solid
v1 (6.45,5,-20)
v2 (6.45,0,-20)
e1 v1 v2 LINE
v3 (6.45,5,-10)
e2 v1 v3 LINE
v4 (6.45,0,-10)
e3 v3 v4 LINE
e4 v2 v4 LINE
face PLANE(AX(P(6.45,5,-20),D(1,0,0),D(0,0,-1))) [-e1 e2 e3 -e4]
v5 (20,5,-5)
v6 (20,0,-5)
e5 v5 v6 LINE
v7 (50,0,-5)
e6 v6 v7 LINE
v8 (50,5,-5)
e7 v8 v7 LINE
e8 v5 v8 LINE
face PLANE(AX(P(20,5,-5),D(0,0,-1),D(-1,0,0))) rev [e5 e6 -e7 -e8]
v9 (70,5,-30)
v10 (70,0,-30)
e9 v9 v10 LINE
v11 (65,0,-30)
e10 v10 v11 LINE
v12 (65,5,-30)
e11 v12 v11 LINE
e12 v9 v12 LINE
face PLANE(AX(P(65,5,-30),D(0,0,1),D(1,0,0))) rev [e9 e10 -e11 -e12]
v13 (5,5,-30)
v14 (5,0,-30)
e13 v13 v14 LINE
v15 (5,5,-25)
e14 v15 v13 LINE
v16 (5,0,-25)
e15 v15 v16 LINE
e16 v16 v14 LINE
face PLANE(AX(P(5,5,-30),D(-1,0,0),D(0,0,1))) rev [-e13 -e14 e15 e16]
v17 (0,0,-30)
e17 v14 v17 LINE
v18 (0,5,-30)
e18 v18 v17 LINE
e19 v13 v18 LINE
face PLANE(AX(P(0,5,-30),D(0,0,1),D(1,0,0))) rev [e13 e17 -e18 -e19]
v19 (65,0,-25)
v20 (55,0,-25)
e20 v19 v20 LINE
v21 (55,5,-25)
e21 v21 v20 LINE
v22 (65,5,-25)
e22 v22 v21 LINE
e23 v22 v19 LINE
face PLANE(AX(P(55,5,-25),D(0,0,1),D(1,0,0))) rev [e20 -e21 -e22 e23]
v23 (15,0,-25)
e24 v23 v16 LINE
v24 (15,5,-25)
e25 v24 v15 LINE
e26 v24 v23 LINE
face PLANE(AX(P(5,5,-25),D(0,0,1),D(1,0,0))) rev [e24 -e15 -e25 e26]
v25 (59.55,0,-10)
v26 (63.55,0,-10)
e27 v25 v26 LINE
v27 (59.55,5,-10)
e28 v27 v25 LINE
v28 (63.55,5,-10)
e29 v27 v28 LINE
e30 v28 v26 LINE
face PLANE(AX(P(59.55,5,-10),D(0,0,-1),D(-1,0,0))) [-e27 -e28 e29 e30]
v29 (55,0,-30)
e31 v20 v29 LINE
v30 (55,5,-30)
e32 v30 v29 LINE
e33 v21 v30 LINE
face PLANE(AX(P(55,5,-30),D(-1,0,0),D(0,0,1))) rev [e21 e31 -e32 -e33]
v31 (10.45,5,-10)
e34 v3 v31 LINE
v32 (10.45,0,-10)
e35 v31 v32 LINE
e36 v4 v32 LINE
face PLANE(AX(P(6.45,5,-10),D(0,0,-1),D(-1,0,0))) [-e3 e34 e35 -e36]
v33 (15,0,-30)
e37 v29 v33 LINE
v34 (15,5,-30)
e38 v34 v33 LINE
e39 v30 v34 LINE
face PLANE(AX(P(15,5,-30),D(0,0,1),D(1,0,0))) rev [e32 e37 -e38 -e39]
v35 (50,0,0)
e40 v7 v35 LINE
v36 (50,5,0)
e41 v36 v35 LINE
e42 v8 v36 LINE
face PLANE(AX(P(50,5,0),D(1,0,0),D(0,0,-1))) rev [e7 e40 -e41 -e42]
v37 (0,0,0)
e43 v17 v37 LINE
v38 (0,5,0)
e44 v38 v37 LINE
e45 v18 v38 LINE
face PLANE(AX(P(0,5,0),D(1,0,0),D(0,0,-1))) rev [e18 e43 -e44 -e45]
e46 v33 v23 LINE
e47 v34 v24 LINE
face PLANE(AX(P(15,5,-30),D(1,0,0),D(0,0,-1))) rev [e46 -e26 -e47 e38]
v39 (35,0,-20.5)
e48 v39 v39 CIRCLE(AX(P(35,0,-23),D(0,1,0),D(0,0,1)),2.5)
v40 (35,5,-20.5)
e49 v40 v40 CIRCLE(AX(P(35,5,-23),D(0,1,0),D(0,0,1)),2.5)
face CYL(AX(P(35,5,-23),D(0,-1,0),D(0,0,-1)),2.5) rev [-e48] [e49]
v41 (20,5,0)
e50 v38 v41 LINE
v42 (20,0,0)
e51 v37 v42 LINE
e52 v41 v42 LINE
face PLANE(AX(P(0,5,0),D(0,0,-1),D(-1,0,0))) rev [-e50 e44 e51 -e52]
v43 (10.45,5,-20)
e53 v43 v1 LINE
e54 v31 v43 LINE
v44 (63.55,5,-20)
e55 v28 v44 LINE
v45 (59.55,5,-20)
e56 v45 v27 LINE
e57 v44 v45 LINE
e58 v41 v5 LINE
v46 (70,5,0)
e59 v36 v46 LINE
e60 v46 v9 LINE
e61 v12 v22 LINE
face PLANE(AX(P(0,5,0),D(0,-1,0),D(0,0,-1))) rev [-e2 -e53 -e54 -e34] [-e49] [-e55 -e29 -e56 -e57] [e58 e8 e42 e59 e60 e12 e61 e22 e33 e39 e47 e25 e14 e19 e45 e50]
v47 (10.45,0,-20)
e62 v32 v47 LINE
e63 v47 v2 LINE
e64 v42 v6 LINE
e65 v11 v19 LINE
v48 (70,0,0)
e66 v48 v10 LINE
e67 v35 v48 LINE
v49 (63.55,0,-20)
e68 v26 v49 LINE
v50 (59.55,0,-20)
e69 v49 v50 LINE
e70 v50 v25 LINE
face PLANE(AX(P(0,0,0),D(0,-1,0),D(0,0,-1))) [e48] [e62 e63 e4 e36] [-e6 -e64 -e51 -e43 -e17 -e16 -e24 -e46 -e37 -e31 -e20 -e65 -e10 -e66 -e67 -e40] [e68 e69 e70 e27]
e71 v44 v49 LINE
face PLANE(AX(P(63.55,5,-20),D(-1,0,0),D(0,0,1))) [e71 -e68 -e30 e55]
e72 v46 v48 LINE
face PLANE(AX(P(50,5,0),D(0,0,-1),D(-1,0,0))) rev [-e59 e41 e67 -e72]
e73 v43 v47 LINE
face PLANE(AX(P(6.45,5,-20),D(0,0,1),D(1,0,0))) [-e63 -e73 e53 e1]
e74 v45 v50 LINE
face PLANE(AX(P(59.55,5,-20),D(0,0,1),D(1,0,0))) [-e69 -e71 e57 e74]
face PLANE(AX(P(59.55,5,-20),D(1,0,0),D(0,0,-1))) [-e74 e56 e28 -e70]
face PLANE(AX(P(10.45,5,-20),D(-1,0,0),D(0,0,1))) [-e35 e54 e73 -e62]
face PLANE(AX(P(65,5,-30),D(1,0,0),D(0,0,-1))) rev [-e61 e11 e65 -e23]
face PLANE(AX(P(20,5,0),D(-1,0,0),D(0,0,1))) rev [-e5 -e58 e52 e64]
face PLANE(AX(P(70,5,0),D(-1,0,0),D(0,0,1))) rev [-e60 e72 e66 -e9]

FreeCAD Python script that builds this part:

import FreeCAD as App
import Part
import Sketcher
from FreeCAD import Vector


def add_polygon(sketch, points):
    """Adds a closed chain of lines whose ends are joined by coincident constraints."""
    first, n = sketch.GeometryCount, len(points)
    for a, b in zip(points, points[1:] + points[:1]):
        sketch.addGeometry(Part.LineSegment(App.Vector(*a, 0), App.Vector(*b, 0)), False)
    for i in range(n):
        sketch.addConstraint(Sketcher.Constraint("Coincident", first + i, 2, first + (i + 1) % n, 1))

doc = App.newDocument("Part")
body = doc.addObject("PartDesign::Body", "Body")

sketch1 = body.newObject("Sketcher::SketchObject", "Sketch")
sketch1.AttachmentSupport = (doc.getObject("XZ_Plane"), [""])
sketch1.MapMode = "FlatFace"
add_polygon(sketch1, [(0, 0), (20, 0), (20, -5), (50, -5), (50, 0), (70, 0), (70, -30), (65, -30), (65, -25), (55, -25), (55, -30), (15, -30), (15, -25), (5, -25), (5, -30), (0, -30)])
add_polygon(sketch1, [(10.45, -10), (6.45, -10), (6.45, -20), (10.45, -20)])
add_polygon(sketch1, [(63.55, -10), (59.55, -10), (59.55, -20), (63.55, -20)])
sketch1.addGeometry(Part.Circle(Vector(35, -23, 0), Vector(0, 0, 1), 2.5), False)
sketch1.addConstraint(Sketcher.Constraint("Horizontal", 0))
sketch1.addConstraint(Sketcher.Constraint("Vertical", 1))
sketch1.addConstraint(Sketcher.Constraint("Horizontal", 2))
sketch1.addConstraint(Sketcher.Constraint("Vertical", 3))
sketch1.addConstraint(Sketcher.Constraint("Horizontal", 4))
sketch1.addConstraint(Sketcher.Constraint("Vertical", 5))
sketch1.addConstraint(Sketcher.Constraint("Horizontal", 6))
sketch1.addConstraint(Sketcher.Constraint("Vertical", 7))
sketch1.addConstraint(Sketcher.Constraint("Horizontal", 8))
sketch1.addConstraint(Sketcher.Constraint("Vertical", 9))
sketch1.addConstraint(Sketcher.Constraint("Horizontal", 10))
sketch1.addConstraint(Sketcher.Constraint("Vertical", 11))
sketch1.addConstraint(Sketcher.Constraint("Horizontal", 12))
sketch1.addConstraint(Sketcher.Constraint("Vertical", 13))
sketch1.addConstraint(Sketcher.Constraint("Horizontal", 14))
sketch1.addConstraint(Sketcher.Constraint("Vertical", 15))
sketch1.addConstraint(Sketcher.Constraint("Horizontal", 16))
sketch1.addConstraint(Sketcher.Constraint("Vertical", 17))
sketch1.addConstraint(Sketcher.Constraint("Horizontal", 18))
sketch1.addConstraint(Sketcher.Constraint("Vertical", 19))
sketch1.addConstraint(Sketcher.Constraint("Horizontal", 20))
sketch1.addConstraint(Sketcher.Constraint("Vertical", 21))
sketch1.addConstraint(Sketcher.Constraint("Horizontal", 22))
sketch1.addConstraint(Sketcher.Constraint("Vertical", 23))
sketch1.addConstraint(Sketcher.Constraint("Coincident", 15, 2, -1, 1))
sketch1.addConstraint(Sketcher.Constraint("PointOnObject", 3, 2, -1))
sketch1.addConstraint(Sketcher.Constraint("Horizontal", 6, 2, 9, 2))
sketch1.addConstraint(Sketcher.Constraint("Horizontal", 8, 2, 11, 2))
sketch1.addConstraint(Sketcher.Constraint("Horizontal", 10, 2, 13, 2))
sketch1.addConstraint(Sketcher.Constraint("Horizontal", 19, 2, 20, 2))
sketch1.addConstraint(Sketcher.Constraint("Horizontal", 18, 2, 21, 2))
sketch1.addConstraint(Sketcher.Constraint("Equal", 0, 4))
sketch1.addConstraint(Sketcher.Constraint("Equal", 8, 12))
sketch1.addConstraint(Sketcher.Constraint("Equal", 6, 14))
sketch1.addConstraint(Sketcher.Constraint("Equal", 18, 20))
sketch1.addConstraint(Sketcher.Constraint("Equal", 14, 1))
sketch1.addConstraint(Sketcher.Constraint("Equal", 2, 5))
sketch1.addConstraint(Sketcher.Constraint("Equal", 3, 7))
sketch1.addConstraint(Sketcher.Constraint("Equal", 12, 17))
sketch1.addConstraint(Sketcher.Constraint("Diameter", 24, 5.0))
sketch1.addConstraint(Sketcher.Constraint("DistanceX", 0, 1, 0, 2, 20.0))
sketch1.addConstraint(Sketcher.Constraint("DistanceX", 2, 1, 2, 2, 30.0))
sketch1.addConstraint(Sketcher.Constraint("DistanceX", 6, 2, 6, 1, 5.0))
sketch1.addConstraint(Sketcher.Constraint("DistanceX", 8, 2, 8, 1, 10.0))
sketch1.addConstraint(Sketcher.Constraint("DistanceX", 16, 2, 16, 1, 4.0))
sketch1.addConstraint(Sketcher.Constraint("DistanceX", -1, 1, 24, 3, 35.0))
sketch1.addConstraint(Sketcher.Constraint("DistanceY", 24, 3, -1, 1, 23.0))
sketch1.addConstraint(Sketcher.Constraint("DistanceY", 16, 2, -1, 1, 10.0))
sketch1.addConstraint(Sketcher.Constraint("DistanceX", -1, 1, 16, 2, 6.45))
sketch1.addConstraint(Sketcher.Constraint("DistanceX", -1, 1, 20, 2, 59.55))
pad1 = body.newObject("PartDesign::Pad", "Pad")
pad1.Profile = sketch1
pad1.Length = 5
pad1.Reversed = True

doc.recompute()
